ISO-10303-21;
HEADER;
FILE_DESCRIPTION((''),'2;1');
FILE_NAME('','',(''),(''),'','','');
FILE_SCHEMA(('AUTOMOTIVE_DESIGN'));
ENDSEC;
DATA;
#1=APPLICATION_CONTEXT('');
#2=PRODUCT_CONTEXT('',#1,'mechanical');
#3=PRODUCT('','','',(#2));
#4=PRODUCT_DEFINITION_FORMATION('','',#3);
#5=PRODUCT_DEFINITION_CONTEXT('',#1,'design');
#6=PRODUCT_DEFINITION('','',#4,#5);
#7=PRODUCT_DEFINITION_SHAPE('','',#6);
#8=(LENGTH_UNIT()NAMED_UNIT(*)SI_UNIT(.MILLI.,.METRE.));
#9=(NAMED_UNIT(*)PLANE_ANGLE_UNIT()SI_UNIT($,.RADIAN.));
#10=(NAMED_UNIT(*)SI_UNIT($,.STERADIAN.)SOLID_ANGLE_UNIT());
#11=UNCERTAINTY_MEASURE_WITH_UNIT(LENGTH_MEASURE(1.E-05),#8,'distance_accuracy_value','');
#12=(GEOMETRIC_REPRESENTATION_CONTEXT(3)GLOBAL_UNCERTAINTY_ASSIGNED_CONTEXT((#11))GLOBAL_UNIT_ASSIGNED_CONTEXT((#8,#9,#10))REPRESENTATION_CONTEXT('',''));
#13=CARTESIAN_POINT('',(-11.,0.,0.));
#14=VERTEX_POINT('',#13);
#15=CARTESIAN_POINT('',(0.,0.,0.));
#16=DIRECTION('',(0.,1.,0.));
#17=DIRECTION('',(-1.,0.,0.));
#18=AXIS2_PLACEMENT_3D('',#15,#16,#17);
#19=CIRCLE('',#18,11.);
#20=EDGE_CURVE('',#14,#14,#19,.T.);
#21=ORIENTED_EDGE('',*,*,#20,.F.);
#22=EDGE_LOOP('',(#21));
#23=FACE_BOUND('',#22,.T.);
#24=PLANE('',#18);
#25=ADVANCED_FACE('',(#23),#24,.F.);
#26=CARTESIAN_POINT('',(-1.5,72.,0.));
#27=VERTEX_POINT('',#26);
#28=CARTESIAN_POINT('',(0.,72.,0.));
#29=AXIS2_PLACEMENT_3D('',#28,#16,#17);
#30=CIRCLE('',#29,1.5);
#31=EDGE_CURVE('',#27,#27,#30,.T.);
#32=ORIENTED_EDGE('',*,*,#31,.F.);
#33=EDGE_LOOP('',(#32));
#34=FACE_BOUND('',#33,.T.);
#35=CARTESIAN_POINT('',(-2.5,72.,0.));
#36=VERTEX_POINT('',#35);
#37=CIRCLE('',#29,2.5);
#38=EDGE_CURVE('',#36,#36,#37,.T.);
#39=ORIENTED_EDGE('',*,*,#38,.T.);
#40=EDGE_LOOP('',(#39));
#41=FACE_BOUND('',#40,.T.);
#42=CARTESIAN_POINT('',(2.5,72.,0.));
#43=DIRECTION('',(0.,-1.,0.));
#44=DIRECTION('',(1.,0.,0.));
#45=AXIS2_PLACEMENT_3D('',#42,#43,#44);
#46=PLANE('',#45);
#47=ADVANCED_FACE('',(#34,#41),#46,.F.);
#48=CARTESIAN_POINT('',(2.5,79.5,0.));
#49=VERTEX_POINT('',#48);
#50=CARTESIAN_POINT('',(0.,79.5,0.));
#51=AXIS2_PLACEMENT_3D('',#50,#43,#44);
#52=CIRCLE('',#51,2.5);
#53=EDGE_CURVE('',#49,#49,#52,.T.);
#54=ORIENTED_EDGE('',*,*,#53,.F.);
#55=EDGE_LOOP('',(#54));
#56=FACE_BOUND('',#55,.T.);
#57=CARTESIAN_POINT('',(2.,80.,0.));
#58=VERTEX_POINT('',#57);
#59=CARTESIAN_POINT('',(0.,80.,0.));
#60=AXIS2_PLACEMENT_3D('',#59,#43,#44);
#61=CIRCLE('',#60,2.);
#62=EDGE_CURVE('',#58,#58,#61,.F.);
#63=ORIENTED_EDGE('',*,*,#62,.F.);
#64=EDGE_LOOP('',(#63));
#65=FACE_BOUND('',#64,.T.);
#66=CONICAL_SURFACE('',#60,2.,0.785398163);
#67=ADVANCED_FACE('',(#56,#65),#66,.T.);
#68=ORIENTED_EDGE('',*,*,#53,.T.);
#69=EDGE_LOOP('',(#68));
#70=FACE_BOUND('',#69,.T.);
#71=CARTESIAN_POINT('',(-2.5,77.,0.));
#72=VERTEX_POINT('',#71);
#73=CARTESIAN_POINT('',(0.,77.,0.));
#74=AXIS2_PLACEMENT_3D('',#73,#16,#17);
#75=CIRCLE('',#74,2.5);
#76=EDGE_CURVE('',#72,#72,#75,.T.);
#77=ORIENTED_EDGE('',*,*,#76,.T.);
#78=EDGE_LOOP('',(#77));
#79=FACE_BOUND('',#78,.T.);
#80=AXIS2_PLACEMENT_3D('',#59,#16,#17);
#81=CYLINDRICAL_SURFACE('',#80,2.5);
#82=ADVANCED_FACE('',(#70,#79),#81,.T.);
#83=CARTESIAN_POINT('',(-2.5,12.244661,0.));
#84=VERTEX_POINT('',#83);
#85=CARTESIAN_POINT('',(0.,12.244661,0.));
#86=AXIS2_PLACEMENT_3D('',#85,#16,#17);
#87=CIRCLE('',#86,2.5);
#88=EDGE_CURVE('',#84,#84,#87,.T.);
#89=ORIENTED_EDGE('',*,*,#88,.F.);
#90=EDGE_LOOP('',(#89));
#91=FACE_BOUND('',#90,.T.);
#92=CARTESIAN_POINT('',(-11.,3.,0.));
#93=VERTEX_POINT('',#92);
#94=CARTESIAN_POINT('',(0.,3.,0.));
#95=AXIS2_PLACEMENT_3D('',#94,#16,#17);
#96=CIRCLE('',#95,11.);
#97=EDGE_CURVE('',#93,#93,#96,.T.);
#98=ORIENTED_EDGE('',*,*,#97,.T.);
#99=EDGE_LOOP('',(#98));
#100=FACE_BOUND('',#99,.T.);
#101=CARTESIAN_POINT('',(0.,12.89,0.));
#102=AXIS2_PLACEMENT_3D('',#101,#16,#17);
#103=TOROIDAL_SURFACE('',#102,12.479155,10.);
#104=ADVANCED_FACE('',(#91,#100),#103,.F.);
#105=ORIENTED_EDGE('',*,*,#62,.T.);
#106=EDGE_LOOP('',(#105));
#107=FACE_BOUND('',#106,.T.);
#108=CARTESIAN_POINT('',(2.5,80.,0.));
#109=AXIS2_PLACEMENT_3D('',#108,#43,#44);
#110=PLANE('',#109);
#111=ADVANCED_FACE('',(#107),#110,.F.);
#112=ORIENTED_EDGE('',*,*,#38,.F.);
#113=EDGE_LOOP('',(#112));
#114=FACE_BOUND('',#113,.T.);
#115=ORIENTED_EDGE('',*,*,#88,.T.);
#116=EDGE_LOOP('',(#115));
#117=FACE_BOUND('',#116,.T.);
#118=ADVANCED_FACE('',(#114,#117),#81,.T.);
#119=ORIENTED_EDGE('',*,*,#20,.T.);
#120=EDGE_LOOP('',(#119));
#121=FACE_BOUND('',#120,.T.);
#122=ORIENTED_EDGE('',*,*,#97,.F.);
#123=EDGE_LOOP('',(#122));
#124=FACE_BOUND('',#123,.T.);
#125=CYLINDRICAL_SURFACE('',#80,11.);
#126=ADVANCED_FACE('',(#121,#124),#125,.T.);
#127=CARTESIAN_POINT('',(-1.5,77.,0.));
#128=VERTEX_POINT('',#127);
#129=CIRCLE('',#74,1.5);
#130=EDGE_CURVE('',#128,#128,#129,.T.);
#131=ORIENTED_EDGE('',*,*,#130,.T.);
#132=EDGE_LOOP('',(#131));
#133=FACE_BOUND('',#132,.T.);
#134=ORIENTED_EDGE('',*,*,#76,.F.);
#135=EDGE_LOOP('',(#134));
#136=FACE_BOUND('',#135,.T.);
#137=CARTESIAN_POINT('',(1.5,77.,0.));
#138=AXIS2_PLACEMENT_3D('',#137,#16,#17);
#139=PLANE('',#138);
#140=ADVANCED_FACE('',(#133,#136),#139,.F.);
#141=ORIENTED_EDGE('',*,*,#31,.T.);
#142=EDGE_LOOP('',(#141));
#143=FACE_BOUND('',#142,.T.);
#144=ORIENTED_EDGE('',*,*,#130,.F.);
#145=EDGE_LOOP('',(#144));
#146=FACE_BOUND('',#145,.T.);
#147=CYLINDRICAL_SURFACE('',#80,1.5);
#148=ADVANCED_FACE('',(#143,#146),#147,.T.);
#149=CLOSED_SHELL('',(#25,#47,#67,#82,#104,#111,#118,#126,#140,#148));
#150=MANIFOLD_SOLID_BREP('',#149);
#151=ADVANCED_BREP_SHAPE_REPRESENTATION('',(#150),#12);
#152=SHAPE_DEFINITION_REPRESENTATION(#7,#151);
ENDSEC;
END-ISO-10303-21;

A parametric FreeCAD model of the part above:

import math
import FreeCAD as App
import Part
import Sketcher

V = App.Vector
Q = App.Units.Quantity


def edges_at(feature, points):
    """Names of the edges that pass closest to the given points."""
    edges = feature.Shape.Edges
    near = lambda p: min(range(len(edges)), key=lambda i: edges[i].distToShape(Part.Vertex(*p))[0])
    return sorted({f"Edge{near(p) + 1}" for p in points})

doc = App.newDocument("Part")
body = doc.addObject("PartDesign::Body", "Body")

# Sketch on XY plane
sketch1 = body.newObject("Sketcher::SketchObject", "Sketch")
sketch1.AttachmentSupport = (doc.getObject("XY_Plane"), [""])
sketch1.MapMode = "FlatFace"
sketch1.addGeometry(Part.LineSegment(V(0, 0, 0), V(11, 0, 0)), False)
sketch1.addGeometry(Part.LineSegment(V(11, 0, 0), V(11, 3, 0)), False)
sketch1.addGeometry(Part.ArcOfCircle(Part.Circle(V(12.479155, 12.89, 0), V(0, 0, 1), 10), math.radians(-176.29991), math.radians(-98.506147)), False)
sketch1.addGeometry(Part.LineSegment(V(2.5, 12.244661, 0), V(2.5, 72, 0)), False)
sketch1.addGeometry(Part.LineSegment(V(2.5, 72, 0), V(1.5, 72, 0)), False)
sketch1.addGeometry(Part.LineSegment(V(1.5, 72, 0), V(1.5, 77, 0)), False)
sketch1.addGeometry(Part.LineSegment(V(1.5, 77, 0), V(2.5, 77, 0)), False)
sketch1.addGeometry(Part.LineSegment(V(2.5, 77, 0), V(2.5, 80, 0)), False)
sketch1.addGeometry(Part.LineSegment(V(2.5, 80, 0), V(0, 80, 0)), False)
sketch1.addGeometry(Part.LineSegment(V(0, 80, 0), V(0, 0, 0)), False)
sketch1.addConstraint(Sketcher.Constraint("Coincident", 0, 2, 1, 1))
sketch1.addConstraint(Sketcher.Constraint("Coincident", 1, 2, 2, 2))
sketch1.addConstraint(Sketcher.Constraint("Coincident", 2, 1, 3, 1))
sketch1.addConstraint(Sketcher.Constraint("Coincident", 3, 2, 4, 1))
sketch1.addConstraint(Sketcher.Constraint("Coincident", 4, 2, 5, 1))
sketch1.addConstraint(Sketcher.Constraint("Coincident", 5, 2, 6, 1))
sketch1.addConstraint(Sketcher.Constraint("Coincident", 6, 2, 7, 1))
sketch1.addConstraint(Sketcher.Constraint("Coincident", 7, 2, 8, 1))
sketch1.addConstraint(Sketcher.Constraint("Coincident", 8, 2, 9, 1))
sketch1.addConstraint(Sketcher.Constraint("Coincident", 9, 2, 0, 1))
sketch1.addConstraint(Sketcher.Constraint("Horizontal", 0))
sketch1.addConstraint(Sketcher.Constraint("Vertical", 1))
sketch1.addConstraint(Sketcher.Constraint("Vertical", 3))
sketch1.addConstraint(Sketcher.Constraint("Horizontal", 4))
sketch1.addConstraint(Sketcher.Constraint("Vertical", 5))
sketch1.addConstraint(Sketcher.Constraint("Horizontal", 6))
sketch1.addConstraint(Sketcher.Constraint("Vertical", 7))
sketch1.addConstraint(Sketcher.Constraint("Horizontal", 8))
sketch1.addConstraint(Sketcher.Constraint("Vertical", 9))
sketch1.addConstraint(Sketcher.Constraint("Coincident", 9, 2, -1, 1))
sketch1.addConstraint(Sketcher.Constraint("Vertical", 3, 2, 6, 2))
sketch1.addConstraint(Sketcher.Constraint("Equal", 1, 7))
sketch1.addConstraint(Sketcher.Constraint("Radius", 2, Q("10 mm")))
sketch1.addConstraint(Sketcher.Constraint("DistanceX", 0, 1, 0, 2, Q("11 mm")))
sketch1.addConstraint(Sketcher.Constraint("DistanceX", 4, 2, 4, 1, Q("1 mm")))
sketch1.addConstraint(Sketcher.Constraint("DistanceY", 1, 1, 1, 2, Q("3 mm")))
sketch1.addConstraint(Sketcher.Constraint("DistanceY", 5, 1, 5, 2, Q("5 mm")))
sketch1.addConstraint(Sketcher.Constraint("DistanceY", 9, 2, 9, 1, Q("80 mm")))
sketch1.addConstraint(Sketcher.Constraint("DistanceX", 8, 2, 8, 1, Q("2.5 mm")))
sketch1.addConstraint(Sketcher.Constraint("DistanceY", -1, 1, 2, 3, Q("12.89 mm")))
revolution = body.newObject("PartDesign::Revolution", "Revolution")
revolution.Profile = sketch1
revolution.ReferenceAxis = (sketch1, ["V_Axis"])
revolution.Angle = 360
doc.recompute()

chamfer = body.newObject("PartDesign::Chamfer", "Chamfer")
chamfer.Base = (revolution, edges_at(revolution, [(2.5, 80, 0)]))
chamfer.Size = 0.5

doc.recompute()
